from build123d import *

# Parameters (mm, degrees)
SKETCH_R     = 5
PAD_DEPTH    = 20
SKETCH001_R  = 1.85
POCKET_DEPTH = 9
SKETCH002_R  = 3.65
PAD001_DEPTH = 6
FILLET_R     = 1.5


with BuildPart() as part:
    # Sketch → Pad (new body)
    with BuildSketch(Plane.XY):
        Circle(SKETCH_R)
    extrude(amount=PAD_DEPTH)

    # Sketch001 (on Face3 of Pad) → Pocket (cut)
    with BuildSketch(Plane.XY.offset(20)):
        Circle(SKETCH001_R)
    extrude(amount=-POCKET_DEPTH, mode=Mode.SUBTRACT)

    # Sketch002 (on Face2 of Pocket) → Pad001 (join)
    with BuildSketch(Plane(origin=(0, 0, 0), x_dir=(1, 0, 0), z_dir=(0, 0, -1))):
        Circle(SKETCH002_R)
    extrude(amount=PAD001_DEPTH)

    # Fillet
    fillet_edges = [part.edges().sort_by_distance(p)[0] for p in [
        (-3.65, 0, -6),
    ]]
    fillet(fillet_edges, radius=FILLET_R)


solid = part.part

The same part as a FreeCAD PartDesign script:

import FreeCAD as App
import Part
import Sketcher

V = App.Vector


def edges_at(feature, points):
    """Names of the edges that pass closest to the given points."""
    edges = feature.Shape.Edges
    near = lambda p: min(range(len(edges)), key=lambda i: edges[i].distToShape(Part.Vertex(*p))[0])
    return sorted({f"Edge{near(p) + 1}" for p in points})

doc = App.newDocument("Part")
params = doc.addObject("Spreadsheet::Sheet", "Params")
for row, (alias, value) in enumerate([
    ("sketch1_diameter", "10 mm"),
    ("pad1_length", "20 mm"),
    ("sketch2_diameter", "3.7 mm"),
    ("pocket1_length", "9 mm"),
    ("sketch3_diameter", "7.3 mm"),
    ("pad2_length", "6 mm"),
    ("fillet_radius", "1.5 mm"),
], start=1):
    params.set(f"A{row}", alias)
    params.set(f"B{row}", "=" + value)
    params.setAlias(f"B{row}", alias)

body = doc.addObject("PartDesign::Body", "Body")

# Sketch on XY plane
sketch1 = body.newObject("Sketcher::SketchObject", "Sketch")
sketch1.AttachmentSupport = (doc.getObject("XY_Plane"), [""])
sketch1.MapMode = "FlatFace"
sketch1.addGeometry(Part.Circle(V(0, 0, 0), V(0, 0, 1), 5), False)
sketch1.addConstraint([
    Sketcher.Constraint("Coincident", 0, 3, -1, 1),
    Sketcher.Constraint("Diameter", 0, 10.0),
])
sketch1.setExpression("Constraints[1]", "Params.sketch1_diameter")
pad1 = body.newObject("PartDesign::Pad", "Pad")
pad1.Profile = sketch1
pad1.setExpression("Length", "Params.pad1_length")

# Sketch on XY plane
sketch2 = body.newObject("Sketcher::SketchObject", "Sketch001")
sketch2.AttachmentSupport = (doc.getObject("XY_Plane"), [""])
sketch2.MapMode = "FlatFace"
sketch2.AttachmentOffset = App.Placement(V(0, 0, 20), App.Rotation())
sketch2.addGeometry(Part.Circle(V(0, 0, 0), V(0, 0, 1), 1.9), False)
sketch2.addConstraint([
    Sketcher.Constraint("Coincident", 0, 3, -1, 1),
    Sketcher.Constraint("Diameter", 0, 3.7),
])
sketch2.setExpression("Constraints[1]", "Params.sketch2_diameter")
pocket1 = body.newObject("PartDesign::Pocket", "Pocket")
pocket1.Profile = sketch2
pocket1.setExpression("Length", "Params.pocket1_length")

# Sketch on XY plane
sketch3 = body.newObject("Sketcher::SketchObject", "Sketch002")
sketch3.AttachmentSupport = (doc.getObject("XY_Plane"), [""])
sketch3.MapMode = "FlatFace"
sketch3.addGeometry(Part.Circle(V(0, 0, 0), V(0, 0, 1), 3.6), False)
sketch3.addConstraint([
    Sketcher.Constraint("Coincident", 0, 3, -1, 1),
    Sketcher.Constraint("Diameter", 0, 7.3),
])
sketch3.setExpression("Constraints[1]", "Params.sketch3_diameter")
pad2 = body.newObject("PartDesign::Pad", "Pad001")
pad2.Profile = sketch3
pad2.setExpression("Length", "Params.pad2_length")
pad2.Reversed = True
doc.recompute()

fillet = body.newObject("PartDesign::Fillet", "Fillet")
fillet.Base = (pad2, edges_at(pad2, [(-3.65, 0, -6)]))
fillet.setExpression("Radius", "Params.fillet_radius")

doc.recompute()
